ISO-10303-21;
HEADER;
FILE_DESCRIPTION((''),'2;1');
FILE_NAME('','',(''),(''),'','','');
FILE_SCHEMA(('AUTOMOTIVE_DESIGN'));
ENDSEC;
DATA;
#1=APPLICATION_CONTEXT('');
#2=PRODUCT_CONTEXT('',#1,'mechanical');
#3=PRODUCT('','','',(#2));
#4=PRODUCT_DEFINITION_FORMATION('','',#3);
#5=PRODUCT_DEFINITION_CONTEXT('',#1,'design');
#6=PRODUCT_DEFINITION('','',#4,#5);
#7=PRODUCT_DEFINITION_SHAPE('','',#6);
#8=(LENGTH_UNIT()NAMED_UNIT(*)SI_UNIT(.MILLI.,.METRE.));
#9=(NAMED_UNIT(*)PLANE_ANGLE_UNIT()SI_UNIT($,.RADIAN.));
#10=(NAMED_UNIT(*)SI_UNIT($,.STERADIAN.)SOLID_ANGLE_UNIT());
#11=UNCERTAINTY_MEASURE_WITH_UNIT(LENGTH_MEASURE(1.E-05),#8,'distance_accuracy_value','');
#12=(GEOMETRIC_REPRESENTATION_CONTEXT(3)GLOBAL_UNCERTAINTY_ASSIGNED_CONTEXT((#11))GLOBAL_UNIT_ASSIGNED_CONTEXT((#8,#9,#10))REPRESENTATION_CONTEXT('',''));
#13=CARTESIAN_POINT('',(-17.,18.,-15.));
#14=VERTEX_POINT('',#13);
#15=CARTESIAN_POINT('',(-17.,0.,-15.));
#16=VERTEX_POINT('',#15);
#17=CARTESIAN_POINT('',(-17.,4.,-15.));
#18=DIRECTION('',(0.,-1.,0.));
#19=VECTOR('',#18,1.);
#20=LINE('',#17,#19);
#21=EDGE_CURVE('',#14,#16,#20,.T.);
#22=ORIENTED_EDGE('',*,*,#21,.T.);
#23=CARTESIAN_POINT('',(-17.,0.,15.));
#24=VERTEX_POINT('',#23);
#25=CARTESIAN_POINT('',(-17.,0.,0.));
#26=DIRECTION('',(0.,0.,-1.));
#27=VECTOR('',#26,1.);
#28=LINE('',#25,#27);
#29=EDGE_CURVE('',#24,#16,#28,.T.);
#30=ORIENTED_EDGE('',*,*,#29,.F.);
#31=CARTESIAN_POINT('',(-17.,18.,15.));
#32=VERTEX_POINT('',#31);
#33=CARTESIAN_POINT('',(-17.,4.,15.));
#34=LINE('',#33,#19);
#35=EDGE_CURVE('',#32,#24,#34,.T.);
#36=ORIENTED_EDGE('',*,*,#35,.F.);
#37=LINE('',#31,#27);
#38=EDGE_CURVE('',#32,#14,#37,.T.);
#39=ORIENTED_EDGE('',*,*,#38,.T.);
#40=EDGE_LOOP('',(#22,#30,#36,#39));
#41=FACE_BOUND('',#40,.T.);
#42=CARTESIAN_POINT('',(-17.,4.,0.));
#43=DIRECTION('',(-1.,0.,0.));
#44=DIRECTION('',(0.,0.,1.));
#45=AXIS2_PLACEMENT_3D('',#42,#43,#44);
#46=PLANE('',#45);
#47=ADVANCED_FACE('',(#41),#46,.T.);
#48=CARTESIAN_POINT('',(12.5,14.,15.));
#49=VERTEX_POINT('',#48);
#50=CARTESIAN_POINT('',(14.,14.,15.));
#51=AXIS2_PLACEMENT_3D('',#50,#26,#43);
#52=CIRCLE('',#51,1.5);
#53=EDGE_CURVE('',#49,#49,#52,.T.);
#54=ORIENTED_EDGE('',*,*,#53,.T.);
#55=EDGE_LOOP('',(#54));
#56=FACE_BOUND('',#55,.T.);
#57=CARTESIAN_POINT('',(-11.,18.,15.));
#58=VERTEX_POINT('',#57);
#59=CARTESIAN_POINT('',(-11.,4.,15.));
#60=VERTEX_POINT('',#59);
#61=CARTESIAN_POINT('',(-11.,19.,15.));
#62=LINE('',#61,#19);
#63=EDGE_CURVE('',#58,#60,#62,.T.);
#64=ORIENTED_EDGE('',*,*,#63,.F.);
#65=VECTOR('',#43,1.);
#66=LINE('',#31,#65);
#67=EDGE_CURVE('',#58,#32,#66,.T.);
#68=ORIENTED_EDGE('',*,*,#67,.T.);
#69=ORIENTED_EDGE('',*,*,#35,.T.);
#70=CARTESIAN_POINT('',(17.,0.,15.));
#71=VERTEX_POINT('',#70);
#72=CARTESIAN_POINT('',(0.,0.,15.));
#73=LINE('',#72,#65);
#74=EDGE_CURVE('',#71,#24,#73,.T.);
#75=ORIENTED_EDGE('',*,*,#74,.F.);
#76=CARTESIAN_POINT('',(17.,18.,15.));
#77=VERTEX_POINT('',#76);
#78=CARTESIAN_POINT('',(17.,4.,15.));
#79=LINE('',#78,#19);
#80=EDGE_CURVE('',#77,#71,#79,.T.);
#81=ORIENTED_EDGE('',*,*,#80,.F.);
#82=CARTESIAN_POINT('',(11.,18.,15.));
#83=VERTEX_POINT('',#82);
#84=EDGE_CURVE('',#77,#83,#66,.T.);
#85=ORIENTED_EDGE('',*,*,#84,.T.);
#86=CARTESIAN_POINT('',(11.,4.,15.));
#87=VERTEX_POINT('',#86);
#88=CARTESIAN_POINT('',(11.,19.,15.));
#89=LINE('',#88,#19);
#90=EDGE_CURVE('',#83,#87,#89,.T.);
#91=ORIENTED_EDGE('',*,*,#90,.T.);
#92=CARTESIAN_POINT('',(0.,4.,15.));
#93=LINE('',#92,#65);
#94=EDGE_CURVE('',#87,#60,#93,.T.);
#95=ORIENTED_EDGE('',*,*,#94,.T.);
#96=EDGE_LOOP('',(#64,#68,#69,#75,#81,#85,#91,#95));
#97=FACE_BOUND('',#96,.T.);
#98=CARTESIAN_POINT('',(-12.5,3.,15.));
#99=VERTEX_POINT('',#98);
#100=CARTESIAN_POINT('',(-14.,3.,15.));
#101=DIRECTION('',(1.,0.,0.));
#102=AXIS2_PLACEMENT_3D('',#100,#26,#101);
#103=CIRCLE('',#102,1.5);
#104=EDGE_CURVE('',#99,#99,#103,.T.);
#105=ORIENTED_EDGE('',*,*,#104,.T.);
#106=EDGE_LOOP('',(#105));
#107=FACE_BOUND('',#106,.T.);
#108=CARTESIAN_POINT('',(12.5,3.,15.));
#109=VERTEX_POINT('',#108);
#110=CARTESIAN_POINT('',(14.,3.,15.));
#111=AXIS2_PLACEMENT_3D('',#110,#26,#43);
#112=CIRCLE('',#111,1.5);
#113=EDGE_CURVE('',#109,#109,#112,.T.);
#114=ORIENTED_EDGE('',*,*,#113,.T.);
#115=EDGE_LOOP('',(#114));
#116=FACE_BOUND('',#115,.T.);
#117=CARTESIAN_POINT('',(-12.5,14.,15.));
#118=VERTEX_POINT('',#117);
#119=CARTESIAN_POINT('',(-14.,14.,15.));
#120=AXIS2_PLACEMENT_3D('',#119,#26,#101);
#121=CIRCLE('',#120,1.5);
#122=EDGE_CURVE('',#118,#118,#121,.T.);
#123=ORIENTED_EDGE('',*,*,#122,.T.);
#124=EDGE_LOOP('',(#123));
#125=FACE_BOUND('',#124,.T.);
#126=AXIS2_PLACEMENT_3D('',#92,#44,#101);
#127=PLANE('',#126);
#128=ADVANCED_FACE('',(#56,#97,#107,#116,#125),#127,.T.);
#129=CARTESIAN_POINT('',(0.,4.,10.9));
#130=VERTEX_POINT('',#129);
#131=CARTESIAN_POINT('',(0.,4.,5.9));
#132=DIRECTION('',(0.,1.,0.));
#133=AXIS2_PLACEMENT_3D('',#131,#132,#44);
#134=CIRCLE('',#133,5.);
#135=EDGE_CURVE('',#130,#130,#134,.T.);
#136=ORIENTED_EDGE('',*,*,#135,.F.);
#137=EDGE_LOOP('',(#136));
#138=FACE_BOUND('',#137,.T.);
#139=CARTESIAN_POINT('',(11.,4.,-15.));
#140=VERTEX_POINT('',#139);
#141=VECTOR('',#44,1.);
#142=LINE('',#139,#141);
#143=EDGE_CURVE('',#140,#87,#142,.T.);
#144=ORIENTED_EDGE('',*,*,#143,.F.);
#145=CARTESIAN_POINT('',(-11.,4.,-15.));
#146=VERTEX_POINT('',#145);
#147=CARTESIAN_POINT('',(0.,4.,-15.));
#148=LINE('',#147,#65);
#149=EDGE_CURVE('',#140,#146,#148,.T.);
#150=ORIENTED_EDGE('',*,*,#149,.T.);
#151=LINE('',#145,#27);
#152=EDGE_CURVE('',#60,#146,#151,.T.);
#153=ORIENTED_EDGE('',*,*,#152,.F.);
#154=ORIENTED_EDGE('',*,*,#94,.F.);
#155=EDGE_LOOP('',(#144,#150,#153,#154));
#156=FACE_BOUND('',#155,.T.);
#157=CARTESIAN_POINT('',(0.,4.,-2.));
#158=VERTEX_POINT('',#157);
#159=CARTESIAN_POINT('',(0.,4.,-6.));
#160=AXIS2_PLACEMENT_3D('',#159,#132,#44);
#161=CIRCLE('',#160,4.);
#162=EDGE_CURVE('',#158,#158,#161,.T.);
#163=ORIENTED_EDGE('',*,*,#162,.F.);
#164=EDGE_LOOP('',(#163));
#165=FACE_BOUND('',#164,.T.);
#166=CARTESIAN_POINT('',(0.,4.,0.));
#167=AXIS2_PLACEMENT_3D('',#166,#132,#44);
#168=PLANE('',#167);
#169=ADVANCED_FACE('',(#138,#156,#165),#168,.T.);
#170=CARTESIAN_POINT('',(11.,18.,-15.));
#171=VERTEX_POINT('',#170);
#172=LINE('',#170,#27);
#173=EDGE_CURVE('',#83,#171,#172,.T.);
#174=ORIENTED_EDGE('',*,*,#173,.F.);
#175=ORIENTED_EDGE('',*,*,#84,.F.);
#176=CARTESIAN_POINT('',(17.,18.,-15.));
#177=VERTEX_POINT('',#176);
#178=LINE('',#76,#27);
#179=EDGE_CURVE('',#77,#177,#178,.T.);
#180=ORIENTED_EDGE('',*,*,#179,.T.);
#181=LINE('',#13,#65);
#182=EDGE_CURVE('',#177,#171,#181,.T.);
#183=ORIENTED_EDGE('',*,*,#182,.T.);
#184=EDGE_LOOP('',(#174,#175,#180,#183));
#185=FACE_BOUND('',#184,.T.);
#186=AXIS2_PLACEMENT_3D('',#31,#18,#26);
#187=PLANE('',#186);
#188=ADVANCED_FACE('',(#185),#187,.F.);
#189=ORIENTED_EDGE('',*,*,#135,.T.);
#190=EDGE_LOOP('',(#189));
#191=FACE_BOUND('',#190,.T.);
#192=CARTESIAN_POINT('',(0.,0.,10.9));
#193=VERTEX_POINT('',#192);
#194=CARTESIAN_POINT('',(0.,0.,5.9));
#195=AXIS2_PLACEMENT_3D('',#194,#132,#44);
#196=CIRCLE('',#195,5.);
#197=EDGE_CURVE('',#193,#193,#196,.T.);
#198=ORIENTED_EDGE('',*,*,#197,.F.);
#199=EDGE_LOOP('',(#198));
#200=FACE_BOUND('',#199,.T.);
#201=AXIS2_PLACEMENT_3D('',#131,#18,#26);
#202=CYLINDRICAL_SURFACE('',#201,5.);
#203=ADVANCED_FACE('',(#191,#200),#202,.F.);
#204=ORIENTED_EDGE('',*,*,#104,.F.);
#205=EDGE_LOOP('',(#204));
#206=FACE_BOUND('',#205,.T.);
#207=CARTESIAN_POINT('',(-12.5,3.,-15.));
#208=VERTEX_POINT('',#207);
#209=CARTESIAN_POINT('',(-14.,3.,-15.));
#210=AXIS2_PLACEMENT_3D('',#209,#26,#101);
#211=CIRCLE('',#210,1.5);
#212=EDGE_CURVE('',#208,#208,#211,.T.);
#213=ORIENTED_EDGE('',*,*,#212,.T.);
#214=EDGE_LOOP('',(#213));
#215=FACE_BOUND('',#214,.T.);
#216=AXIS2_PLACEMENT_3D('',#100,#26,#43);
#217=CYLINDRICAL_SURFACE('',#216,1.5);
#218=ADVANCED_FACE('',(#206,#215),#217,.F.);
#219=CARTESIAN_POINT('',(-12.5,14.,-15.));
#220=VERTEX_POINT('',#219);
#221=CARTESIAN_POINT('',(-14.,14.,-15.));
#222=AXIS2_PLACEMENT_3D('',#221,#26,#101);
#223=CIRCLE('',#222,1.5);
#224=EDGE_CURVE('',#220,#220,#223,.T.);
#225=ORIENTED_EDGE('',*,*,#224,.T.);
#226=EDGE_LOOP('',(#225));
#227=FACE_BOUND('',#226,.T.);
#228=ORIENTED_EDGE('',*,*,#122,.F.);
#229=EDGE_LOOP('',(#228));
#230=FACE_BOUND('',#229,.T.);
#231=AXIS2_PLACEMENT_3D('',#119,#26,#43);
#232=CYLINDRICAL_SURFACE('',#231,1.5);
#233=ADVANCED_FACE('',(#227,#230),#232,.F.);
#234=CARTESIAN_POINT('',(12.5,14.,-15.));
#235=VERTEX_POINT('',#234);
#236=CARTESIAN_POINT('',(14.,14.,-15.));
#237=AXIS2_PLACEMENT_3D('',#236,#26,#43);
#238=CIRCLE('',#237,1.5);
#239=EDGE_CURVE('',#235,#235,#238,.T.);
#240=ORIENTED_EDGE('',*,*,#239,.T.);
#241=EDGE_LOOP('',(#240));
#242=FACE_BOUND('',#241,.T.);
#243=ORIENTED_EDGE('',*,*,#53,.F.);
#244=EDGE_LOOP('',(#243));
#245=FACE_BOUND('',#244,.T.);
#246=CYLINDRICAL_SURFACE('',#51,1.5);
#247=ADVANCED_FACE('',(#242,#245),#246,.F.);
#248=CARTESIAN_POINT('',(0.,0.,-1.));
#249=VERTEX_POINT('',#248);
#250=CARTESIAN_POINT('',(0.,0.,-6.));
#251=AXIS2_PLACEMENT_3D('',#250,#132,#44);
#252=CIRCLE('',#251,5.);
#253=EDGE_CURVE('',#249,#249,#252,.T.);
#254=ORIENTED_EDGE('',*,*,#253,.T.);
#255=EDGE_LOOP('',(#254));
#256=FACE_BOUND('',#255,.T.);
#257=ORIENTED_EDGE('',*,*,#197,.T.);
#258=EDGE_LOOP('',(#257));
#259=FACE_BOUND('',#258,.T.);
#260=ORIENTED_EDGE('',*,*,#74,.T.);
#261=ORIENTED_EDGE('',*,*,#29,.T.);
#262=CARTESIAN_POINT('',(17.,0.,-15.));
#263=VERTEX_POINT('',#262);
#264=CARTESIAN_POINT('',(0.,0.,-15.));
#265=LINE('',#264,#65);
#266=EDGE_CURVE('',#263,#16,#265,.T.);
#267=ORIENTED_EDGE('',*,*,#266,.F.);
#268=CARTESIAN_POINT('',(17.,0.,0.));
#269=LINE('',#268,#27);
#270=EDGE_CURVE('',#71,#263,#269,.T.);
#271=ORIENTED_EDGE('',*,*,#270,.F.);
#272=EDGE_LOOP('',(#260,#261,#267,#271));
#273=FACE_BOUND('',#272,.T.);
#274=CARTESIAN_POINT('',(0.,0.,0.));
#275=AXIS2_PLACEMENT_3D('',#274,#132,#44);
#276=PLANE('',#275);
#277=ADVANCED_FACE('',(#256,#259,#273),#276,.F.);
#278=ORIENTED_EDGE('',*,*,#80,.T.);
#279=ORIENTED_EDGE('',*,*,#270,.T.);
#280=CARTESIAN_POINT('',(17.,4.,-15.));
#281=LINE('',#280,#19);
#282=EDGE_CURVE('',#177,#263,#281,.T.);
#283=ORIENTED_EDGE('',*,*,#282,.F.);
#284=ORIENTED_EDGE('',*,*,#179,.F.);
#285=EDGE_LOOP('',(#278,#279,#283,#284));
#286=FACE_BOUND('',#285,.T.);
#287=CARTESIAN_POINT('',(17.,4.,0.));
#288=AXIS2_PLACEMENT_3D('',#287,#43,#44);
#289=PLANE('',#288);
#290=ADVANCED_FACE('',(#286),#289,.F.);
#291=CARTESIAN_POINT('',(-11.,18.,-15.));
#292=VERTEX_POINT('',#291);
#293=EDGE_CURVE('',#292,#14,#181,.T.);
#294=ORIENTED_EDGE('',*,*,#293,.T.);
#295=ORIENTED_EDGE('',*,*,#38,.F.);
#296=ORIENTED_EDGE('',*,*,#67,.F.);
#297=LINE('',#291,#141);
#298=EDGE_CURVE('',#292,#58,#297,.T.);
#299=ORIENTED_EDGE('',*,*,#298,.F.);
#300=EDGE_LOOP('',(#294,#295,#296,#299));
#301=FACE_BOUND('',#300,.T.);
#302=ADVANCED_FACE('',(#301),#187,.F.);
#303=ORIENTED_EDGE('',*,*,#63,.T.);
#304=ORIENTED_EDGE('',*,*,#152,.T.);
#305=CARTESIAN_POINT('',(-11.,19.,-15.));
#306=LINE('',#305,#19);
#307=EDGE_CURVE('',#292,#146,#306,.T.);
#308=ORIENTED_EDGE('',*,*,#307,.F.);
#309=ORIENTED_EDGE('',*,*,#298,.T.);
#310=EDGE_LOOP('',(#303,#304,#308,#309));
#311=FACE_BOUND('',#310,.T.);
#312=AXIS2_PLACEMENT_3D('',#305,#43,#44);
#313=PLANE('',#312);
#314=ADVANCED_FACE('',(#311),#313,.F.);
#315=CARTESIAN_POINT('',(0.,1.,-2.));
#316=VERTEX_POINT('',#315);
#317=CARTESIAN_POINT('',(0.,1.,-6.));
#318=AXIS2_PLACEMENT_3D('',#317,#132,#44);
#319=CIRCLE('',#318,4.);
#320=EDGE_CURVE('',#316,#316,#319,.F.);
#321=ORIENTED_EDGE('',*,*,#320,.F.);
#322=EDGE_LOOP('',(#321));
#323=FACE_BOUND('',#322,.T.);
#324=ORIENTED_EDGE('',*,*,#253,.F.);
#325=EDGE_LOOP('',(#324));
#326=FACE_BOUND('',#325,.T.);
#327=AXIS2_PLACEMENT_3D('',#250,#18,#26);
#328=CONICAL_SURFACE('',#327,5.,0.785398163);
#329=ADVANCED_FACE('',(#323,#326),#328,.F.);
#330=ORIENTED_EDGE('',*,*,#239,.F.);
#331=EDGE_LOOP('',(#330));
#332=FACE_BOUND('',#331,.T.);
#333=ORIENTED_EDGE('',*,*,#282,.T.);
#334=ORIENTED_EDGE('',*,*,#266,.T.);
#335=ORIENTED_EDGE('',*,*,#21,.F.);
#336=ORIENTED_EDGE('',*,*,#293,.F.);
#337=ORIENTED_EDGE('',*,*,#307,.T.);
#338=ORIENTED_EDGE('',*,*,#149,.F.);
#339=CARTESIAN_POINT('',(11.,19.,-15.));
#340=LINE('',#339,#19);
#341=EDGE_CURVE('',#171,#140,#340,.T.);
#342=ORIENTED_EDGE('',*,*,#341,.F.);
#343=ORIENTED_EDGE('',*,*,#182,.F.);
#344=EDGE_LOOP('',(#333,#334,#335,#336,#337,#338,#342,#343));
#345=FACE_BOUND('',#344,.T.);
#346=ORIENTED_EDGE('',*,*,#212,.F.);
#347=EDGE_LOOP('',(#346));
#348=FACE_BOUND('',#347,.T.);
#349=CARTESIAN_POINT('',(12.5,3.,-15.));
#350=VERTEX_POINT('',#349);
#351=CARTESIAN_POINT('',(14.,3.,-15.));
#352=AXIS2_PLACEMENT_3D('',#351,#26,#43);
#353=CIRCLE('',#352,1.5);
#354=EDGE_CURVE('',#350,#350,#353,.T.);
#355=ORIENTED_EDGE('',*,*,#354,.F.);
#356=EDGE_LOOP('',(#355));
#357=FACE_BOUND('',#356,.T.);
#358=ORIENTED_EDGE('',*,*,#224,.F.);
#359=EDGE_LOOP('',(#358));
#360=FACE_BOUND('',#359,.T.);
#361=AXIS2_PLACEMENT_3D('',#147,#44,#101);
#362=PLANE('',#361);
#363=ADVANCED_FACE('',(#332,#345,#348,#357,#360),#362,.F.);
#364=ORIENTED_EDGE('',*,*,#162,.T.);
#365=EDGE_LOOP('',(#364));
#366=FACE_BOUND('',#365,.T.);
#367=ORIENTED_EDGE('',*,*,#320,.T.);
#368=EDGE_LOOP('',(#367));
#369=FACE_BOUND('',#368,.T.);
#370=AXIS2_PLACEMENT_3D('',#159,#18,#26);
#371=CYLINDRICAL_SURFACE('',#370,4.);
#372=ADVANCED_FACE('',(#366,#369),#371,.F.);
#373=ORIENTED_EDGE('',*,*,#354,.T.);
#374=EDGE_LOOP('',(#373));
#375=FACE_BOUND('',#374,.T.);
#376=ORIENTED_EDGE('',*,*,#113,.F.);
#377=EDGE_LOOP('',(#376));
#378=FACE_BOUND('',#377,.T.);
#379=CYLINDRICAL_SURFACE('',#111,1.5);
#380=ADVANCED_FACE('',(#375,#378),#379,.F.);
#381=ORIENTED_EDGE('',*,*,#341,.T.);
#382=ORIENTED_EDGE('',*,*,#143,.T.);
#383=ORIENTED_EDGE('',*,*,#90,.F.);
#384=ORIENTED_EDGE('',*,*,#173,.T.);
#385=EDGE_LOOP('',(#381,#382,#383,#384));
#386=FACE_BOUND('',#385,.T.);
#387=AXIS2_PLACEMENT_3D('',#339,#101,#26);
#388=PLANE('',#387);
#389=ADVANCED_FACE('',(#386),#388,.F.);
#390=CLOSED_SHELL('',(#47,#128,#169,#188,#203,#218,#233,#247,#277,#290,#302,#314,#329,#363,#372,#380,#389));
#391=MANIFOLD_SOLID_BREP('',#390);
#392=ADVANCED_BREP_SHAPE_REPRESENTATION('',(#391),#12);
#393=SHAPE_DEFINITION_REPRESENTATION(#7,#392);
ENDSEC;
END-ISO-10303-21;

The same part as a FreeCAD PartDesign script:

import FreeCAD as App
import Part
import Sketcher
from FreeCAD import Vector


def edges_at(feature, points):
    """Names of the edges that pass closest to the given points."""
    edges = feature.Shape.Edges
    near = lambda p: min(range(len(edges)), key=lambda i: edges[i].distToShape(Part.Vertex(*p))[0])
    return sorted({f"Edge{near(p) + 1}" for p in points})

doc = App.newDocument("Part")
body = doc.addObject("PartDesign::Body", "Body")

sketch1 = body.newObject("Sketcher::SketchObject", "Sketch")
sketch1.AttachmentSupport = (doc.getObject("XZ_Plane"), [""])
sketch1.MapMode = "FlatFace"
sketch1.addGeometry([
    Part.LineSegment(Vector(-17, -15, 0), Vector(-17, 15, 0)),
    Part.LineSegment(Vector(-17, 15, 0), Vector(17, 15, 0)),
    Part.LineSegment(Vector(17, 15, 0), Vector(17, -15, 0)),
    Part.LineSegment(Vector(17, -15, 0), Vector(-17, -15, 0)),
    Part.Circle(Vector(0, 5.9, 0), Vector(0, 0, 1), 5),
    Part.Circle(Vector(0, -6, 0), Vector(0, 0, 1), 4),
], False)
sketch1.addConstraint([
    Sketcher.Constraint("Coincident", 0, 2, 1, 1),
    Sketcher.Constraint("Coincident", 1, 2, 2, 1),
    Sketcher.Constraint("Coincident", 2, 2, 3, 1),
    Sketcher.Constraint("Coincident", 3, 2, 0, 1),
    Sketcher.Constraint("Vertical", 0),
    Sketcher.Constraint("Horizontal", 1),
    Sketcher.Constraint("Vertical", 2),
    Sketcher.Constraint("Horizontal", 3),
    Sketcher.Constraint("Symmetric", 0, 2, 2, 2, -1, 1),
    Sketcher.Constraint("PointOnObject", 4, 3, -2),
    Sketcher.Constraint("PointOnObject", 5, 3, -2),
    Sketcher.Constraint("Diameter", 4, 10.0),
    Sketcher.Constraint("Diameter", 5, 8.0),
    Sketcher.Constraint("DistanceX", 1, 1, 1, 2, 34.0),
    Sketcher.Constraint("DistanceY", 0, 1, 0, 2, 30.0),
    Sketcher.Constraint("DistanceY", 5, 3, -1, 1, 6.0),
    Sketcher.Constraint("DistanceY", -1, 1, 4, 3, 5.9),
])
pad1 = body.newObject("PartDesign::Pad", "Pad")
pad1.Profile = sketch1
pad1.Length = 4
pad1.Reversed = True

sketch2 = body.newObject("Sketcher::SketchObject", "Sketch001")
sketch2.AttachmentSupport = (doc.getObject("XZ_Plane"), [""])
sketch2.MapMode = "FlatFace"
sketch2.AttachmentOffset = App.Placement(Vector(0, 0, -4), App.Rotation())
sketch2.addGeometry([
    Part.LineSegment(Vector(-17, -15, 0), Vector(-17, 15, 0)),
    Part.LineSegment(Vector(-17, 15, 0), Vector(-11, 15, 0)),
    Part.LineSegment(Vector(-11, 15, 0), Vector(-11, -15, 0)),
    Part.LineSegment(Vector(-11, -15, 0), Vector(-17, -15, 0)),
    Part.LineSegment(Vector(11, -15, 0), Vector(11, 15, 0)),
    Part.LineSegment(Vector(11, 15, 0), Vector(17, 15, 0)),
    Part.LineSegment(Vector(17, 15, 0), Vector(17, -15, 0)),
    Part.LineSegment(Vector(17, -15, 0), Vector(11, -15, 0)),
], False)
sketch2.addConstraint([
    Sketcher.Constraint("Coincident", 0, 2, 1, 1),
    Sketcher.Constraint("Coincident", 1, 2, 2, 1),
    Sketcher.Constraint("Coincident", 2, 2, 3, 1),
    Sketcher.Constraint("Coincident", 3, 2, 0, 1),
    Sketcher.Constraint("Coincident", 4, 2, 5, 1),
    Sketcher.Constraint("Coincident", 5, 2, 6, 1),
    Sketcher.Constraint("Coincident", 6, 2, 7, 1),
    Sketcher.Constraint("Coincident", 7, 2, 4, 1),
    Sketcher.Constraint("Vertical", 0),
    Sketcher.Constraint("Horizontal", 1),
    Sketcher.Constraint("Vertical", 2),
    Sketcher.Constraint("Horizontal", 3),
    Sketcher.Constraint("Vertical", 4),
    Sketcher.Constraint("Horizontal", 5),
    Sketcher.Constraint("Vertical", 6),
    Sketcher.Constraint("Horizontal", 7),
    Sketcher.Constraint("Symmetric", 2, 2, 4, 2, -1, 1),
    Sketcher.Constraint("Symmetric", 0, 2, 6, 2, -1, 1),
    Sketcher.Constraint("Horizontal", 1, 2, 4, 2),
    Sketcher.Constraint("DistanceX", 1, 1, 1, 2, 6.0),
    Sketcher.Constraint("DistanceY", 0, 1, 0, 2, 30.0),
    Sketcher.Constraint("DistanceX", 0, 2, -1, 1, 17.0),
])
pad2 = body.newObject("PartDesign::Pad", "Pad001")
pad2.Profile = sketch2
pad2.Length = 15
pad2.Reversed = True

sketch3 = body.newObject("Sketcher::SketchObject", "Sketch002")
sketch3.AttachmentSupport = (doc.getObject("XY_Plane"), [""])
sketch3.MapMode = "FlatFace"
sketch3.AttachmentOffset = App.Placement(Vector(0, 0, -15), App.Rotation())
sketch3.addGeometry([
    Part.Circle(Vector(14, 3, 0), Vector(0, 0, 1), 1.5),
    Part.Circle(Vector(14, 14, 0), Vector(0, 0, 1), 1.5),
    Part.Circle(Vector(-14, 3, 0), Vector(0, 0, 1), 1.5),
    Part.Circle(Vector(-14, 14, 0), Vector(0, 0, 1), 1.5),
], False)
sketch3.addConstraint([
    Sketcher.Constraint("Equal", 0, 1),
    Sketcher.Constraint("Equal", 1, 2),
    Sketcher.Constraint("Equal", 2, 3),
    Sketcher.Constraint("Symmetric", 0, 3, 2, 3, -2),
    Sketcher.Constraint("Symmetric", 1, 3, 3, 3, -2),
    Sketcher.Constraint("Vertical", 0, 3, 1, 3),
    Sketcher.Constraint("Diameter", 0, 3.0),
    Sketcher.Constraint("DistanceX", -1, 1, 0, 3, 14.0),
    Sketcher.Constraint("DistanceY", -1, 1, 0, 3, 3.0),
    Sketcher.Constraint("DistanceY", -1, 1, 1, 3, 14.0),
])
pocket1 = body.newObject("PartDesign::Pocket", "Pocket")
pocket1.Profile = sketch3
pocket1.Type = "ThroughAll"
pocket1.Reversed = True

sketch4 = body.newObject("Sketcher::SketchObject", "Sketch003")
sketch4.AttachmentSupport = (doc.getObject("XY_Plane"), [""])
sketch4.MapMode = "FlatFace"
sketch4.AttachmentOffset = App.Placement(Vector(0, 0, -15), App.Rotation())
sketch4.addGeometry([
    Part.LineSegment(Vector(17, 19, 0), Vector(17, 18, 0)),
    Part.LineSegment(Vector(17, 18, 0), Vector(-17, 18, 0)),
    Part.LineSegment(Vector(-17, 18, 0), Vector(-17, 19, 0)),
    Part.LineSegment(Vector(-17, 19, 0), Vector(17, 19, 0)),
], False)
sketch4.addConstraint([
    Sketcher.Constraint("Coincident", 0, 2, 1, 1),
    Sketcher.Constraint("Coincident", 1, 2, 2, 1),
    Sketcher.Constraint("Coincident", 2, 2, 3, 1),
    Sketcher.Constraint("Coincident", 3, 2, 0, 1),
    Sketcher.Constraint("Vertical", 0),
    Sketcher.Constraint("Horizontal", 1),
    Sketcher.Constraint("Vertical", 2),
    Sketcher.Constraint("Horizontal", 3),
    Sketcher.Constraint("DistanceX", 1, 2, 1, 1, 34.0),
    Sketcher.Constraint("DistanceY", 0, 2, 0, 1, 1.0),
    Sketcher.Constraint("DistanceX", -1, 1, 0, 2, 17.0),
    Sketcher.Constraint("DistanceY", -1, 1, 0, 2, 18.0),
])
pocket2 = body.newObject("PartDesign::Pocket", "Pocket001")
pocket2.Profile = sketch4
pocket2.Type = "ThroughAll"
pocket2.Reversed = True
doc.recompute()

chamfer = body.newObject("PartDesign::Chamfer", "Chamfer")
chamfer.Base = (pocket2, edges_at(pocket2, [(0, 0, -10)]))
chamfer.Size = 1

doc.recompute()
